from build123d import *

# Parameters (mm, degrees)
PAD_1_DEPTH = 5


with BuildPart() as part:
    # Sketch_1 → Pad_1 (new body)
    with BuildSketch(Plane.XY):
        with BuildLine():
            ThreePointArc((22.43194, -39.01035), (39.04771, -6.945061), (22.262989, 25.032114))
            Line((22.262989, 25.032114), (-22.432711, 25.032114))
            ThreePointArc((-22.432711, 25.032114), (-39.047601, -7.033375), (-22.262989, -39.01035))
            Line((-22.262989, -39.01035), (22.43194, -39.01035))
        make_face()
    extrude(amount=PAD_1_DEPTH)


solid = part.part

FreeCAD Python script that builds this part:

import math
import FreeCAD as App
import Part
import Sketcher
from FreeCAD import Vector
Q = App.Units.Quantity

doc = App.newDocument("Part")
body = doc.addObject("PartDesign::Body", "Body")

sketch1 = body.newObject("Sketcher::SketchObject", "Sketch")
sketch1.AttachmentSupport = (doc.getObject("XY_Plane"), [""])
sketch1.MapMode = "FlatFace"
sketch1.addGeometry([
    Part.ArcOfCircle(Part.Circle(Vector(-0.001342, -7.048077, 0), Vector(0, 0, 1), 39.049188), math.radians(-54.93623), math.radians(55.238534)),
    Part.LineSegment(Vector(22.262989, 25.032114, 0), Vector(-22.432711, 25.032114, 0)),
    Part.ArcOfCircle(Part.Circle(Vector(0.002112, -6.929887, 0), Vector(0, 0, 1), 39.049851), math.radians(125.065851), math.radians(235.237833)),
    Part.LineSegment(Vector(-22.262989, -39.01035, 0), Vector(22.43194, -39.01035, 0)),
], False)
sketch1.addConstraint([
    Sketcher.Constraint("Coincident", 0, 2, 1, 1),
    Sketcher.Constraint("Coincident", 1, 2, 2, 1),
    Sketcher.Constraint("Coincident", 2, 2, 3, 1),
    Sketcher.Constraint("Coincident", 3, 2, 0, 1),
    Sketcher.Constraint("Horizontal", 1),
    Sketcher.Constraint("Horizontal", 3),
    Sketcher.Constraint("Radius", 2, Q("39.049851 mm")),
    Sketcher.Constraint("DistanceX", 1, 2, 1, 1, Q("44.6957 mm")),
    Sketcher.Constraint("Radius", 0, Q("39.049188 mm")),
    Sketcher.Constraint("DistanceY", 2, 3, 0, 2, Q("31.962001 mm")),
    Sketcher.Constraint("DistanceX", 3, 1, 3, 2, Q("44.694929 mm")),
    Sketcher.Constraint("DistanceX", 2, 2, 2, 3, Q("22.265101 mm")),
    Sketcher.Constraint("DistanceX", 0, 3, -1, 1, Q("0.001342 mm")),
    Sketcher.Constraint("DistanceY", 2, 2, -1, 1, Q("39.01035 mm")),
])
pad1 = body.newObject("PartDesign::Pad", "Pad")
pad1.Profile = sketch1
pad1.Length = 5

doc.recompute()
